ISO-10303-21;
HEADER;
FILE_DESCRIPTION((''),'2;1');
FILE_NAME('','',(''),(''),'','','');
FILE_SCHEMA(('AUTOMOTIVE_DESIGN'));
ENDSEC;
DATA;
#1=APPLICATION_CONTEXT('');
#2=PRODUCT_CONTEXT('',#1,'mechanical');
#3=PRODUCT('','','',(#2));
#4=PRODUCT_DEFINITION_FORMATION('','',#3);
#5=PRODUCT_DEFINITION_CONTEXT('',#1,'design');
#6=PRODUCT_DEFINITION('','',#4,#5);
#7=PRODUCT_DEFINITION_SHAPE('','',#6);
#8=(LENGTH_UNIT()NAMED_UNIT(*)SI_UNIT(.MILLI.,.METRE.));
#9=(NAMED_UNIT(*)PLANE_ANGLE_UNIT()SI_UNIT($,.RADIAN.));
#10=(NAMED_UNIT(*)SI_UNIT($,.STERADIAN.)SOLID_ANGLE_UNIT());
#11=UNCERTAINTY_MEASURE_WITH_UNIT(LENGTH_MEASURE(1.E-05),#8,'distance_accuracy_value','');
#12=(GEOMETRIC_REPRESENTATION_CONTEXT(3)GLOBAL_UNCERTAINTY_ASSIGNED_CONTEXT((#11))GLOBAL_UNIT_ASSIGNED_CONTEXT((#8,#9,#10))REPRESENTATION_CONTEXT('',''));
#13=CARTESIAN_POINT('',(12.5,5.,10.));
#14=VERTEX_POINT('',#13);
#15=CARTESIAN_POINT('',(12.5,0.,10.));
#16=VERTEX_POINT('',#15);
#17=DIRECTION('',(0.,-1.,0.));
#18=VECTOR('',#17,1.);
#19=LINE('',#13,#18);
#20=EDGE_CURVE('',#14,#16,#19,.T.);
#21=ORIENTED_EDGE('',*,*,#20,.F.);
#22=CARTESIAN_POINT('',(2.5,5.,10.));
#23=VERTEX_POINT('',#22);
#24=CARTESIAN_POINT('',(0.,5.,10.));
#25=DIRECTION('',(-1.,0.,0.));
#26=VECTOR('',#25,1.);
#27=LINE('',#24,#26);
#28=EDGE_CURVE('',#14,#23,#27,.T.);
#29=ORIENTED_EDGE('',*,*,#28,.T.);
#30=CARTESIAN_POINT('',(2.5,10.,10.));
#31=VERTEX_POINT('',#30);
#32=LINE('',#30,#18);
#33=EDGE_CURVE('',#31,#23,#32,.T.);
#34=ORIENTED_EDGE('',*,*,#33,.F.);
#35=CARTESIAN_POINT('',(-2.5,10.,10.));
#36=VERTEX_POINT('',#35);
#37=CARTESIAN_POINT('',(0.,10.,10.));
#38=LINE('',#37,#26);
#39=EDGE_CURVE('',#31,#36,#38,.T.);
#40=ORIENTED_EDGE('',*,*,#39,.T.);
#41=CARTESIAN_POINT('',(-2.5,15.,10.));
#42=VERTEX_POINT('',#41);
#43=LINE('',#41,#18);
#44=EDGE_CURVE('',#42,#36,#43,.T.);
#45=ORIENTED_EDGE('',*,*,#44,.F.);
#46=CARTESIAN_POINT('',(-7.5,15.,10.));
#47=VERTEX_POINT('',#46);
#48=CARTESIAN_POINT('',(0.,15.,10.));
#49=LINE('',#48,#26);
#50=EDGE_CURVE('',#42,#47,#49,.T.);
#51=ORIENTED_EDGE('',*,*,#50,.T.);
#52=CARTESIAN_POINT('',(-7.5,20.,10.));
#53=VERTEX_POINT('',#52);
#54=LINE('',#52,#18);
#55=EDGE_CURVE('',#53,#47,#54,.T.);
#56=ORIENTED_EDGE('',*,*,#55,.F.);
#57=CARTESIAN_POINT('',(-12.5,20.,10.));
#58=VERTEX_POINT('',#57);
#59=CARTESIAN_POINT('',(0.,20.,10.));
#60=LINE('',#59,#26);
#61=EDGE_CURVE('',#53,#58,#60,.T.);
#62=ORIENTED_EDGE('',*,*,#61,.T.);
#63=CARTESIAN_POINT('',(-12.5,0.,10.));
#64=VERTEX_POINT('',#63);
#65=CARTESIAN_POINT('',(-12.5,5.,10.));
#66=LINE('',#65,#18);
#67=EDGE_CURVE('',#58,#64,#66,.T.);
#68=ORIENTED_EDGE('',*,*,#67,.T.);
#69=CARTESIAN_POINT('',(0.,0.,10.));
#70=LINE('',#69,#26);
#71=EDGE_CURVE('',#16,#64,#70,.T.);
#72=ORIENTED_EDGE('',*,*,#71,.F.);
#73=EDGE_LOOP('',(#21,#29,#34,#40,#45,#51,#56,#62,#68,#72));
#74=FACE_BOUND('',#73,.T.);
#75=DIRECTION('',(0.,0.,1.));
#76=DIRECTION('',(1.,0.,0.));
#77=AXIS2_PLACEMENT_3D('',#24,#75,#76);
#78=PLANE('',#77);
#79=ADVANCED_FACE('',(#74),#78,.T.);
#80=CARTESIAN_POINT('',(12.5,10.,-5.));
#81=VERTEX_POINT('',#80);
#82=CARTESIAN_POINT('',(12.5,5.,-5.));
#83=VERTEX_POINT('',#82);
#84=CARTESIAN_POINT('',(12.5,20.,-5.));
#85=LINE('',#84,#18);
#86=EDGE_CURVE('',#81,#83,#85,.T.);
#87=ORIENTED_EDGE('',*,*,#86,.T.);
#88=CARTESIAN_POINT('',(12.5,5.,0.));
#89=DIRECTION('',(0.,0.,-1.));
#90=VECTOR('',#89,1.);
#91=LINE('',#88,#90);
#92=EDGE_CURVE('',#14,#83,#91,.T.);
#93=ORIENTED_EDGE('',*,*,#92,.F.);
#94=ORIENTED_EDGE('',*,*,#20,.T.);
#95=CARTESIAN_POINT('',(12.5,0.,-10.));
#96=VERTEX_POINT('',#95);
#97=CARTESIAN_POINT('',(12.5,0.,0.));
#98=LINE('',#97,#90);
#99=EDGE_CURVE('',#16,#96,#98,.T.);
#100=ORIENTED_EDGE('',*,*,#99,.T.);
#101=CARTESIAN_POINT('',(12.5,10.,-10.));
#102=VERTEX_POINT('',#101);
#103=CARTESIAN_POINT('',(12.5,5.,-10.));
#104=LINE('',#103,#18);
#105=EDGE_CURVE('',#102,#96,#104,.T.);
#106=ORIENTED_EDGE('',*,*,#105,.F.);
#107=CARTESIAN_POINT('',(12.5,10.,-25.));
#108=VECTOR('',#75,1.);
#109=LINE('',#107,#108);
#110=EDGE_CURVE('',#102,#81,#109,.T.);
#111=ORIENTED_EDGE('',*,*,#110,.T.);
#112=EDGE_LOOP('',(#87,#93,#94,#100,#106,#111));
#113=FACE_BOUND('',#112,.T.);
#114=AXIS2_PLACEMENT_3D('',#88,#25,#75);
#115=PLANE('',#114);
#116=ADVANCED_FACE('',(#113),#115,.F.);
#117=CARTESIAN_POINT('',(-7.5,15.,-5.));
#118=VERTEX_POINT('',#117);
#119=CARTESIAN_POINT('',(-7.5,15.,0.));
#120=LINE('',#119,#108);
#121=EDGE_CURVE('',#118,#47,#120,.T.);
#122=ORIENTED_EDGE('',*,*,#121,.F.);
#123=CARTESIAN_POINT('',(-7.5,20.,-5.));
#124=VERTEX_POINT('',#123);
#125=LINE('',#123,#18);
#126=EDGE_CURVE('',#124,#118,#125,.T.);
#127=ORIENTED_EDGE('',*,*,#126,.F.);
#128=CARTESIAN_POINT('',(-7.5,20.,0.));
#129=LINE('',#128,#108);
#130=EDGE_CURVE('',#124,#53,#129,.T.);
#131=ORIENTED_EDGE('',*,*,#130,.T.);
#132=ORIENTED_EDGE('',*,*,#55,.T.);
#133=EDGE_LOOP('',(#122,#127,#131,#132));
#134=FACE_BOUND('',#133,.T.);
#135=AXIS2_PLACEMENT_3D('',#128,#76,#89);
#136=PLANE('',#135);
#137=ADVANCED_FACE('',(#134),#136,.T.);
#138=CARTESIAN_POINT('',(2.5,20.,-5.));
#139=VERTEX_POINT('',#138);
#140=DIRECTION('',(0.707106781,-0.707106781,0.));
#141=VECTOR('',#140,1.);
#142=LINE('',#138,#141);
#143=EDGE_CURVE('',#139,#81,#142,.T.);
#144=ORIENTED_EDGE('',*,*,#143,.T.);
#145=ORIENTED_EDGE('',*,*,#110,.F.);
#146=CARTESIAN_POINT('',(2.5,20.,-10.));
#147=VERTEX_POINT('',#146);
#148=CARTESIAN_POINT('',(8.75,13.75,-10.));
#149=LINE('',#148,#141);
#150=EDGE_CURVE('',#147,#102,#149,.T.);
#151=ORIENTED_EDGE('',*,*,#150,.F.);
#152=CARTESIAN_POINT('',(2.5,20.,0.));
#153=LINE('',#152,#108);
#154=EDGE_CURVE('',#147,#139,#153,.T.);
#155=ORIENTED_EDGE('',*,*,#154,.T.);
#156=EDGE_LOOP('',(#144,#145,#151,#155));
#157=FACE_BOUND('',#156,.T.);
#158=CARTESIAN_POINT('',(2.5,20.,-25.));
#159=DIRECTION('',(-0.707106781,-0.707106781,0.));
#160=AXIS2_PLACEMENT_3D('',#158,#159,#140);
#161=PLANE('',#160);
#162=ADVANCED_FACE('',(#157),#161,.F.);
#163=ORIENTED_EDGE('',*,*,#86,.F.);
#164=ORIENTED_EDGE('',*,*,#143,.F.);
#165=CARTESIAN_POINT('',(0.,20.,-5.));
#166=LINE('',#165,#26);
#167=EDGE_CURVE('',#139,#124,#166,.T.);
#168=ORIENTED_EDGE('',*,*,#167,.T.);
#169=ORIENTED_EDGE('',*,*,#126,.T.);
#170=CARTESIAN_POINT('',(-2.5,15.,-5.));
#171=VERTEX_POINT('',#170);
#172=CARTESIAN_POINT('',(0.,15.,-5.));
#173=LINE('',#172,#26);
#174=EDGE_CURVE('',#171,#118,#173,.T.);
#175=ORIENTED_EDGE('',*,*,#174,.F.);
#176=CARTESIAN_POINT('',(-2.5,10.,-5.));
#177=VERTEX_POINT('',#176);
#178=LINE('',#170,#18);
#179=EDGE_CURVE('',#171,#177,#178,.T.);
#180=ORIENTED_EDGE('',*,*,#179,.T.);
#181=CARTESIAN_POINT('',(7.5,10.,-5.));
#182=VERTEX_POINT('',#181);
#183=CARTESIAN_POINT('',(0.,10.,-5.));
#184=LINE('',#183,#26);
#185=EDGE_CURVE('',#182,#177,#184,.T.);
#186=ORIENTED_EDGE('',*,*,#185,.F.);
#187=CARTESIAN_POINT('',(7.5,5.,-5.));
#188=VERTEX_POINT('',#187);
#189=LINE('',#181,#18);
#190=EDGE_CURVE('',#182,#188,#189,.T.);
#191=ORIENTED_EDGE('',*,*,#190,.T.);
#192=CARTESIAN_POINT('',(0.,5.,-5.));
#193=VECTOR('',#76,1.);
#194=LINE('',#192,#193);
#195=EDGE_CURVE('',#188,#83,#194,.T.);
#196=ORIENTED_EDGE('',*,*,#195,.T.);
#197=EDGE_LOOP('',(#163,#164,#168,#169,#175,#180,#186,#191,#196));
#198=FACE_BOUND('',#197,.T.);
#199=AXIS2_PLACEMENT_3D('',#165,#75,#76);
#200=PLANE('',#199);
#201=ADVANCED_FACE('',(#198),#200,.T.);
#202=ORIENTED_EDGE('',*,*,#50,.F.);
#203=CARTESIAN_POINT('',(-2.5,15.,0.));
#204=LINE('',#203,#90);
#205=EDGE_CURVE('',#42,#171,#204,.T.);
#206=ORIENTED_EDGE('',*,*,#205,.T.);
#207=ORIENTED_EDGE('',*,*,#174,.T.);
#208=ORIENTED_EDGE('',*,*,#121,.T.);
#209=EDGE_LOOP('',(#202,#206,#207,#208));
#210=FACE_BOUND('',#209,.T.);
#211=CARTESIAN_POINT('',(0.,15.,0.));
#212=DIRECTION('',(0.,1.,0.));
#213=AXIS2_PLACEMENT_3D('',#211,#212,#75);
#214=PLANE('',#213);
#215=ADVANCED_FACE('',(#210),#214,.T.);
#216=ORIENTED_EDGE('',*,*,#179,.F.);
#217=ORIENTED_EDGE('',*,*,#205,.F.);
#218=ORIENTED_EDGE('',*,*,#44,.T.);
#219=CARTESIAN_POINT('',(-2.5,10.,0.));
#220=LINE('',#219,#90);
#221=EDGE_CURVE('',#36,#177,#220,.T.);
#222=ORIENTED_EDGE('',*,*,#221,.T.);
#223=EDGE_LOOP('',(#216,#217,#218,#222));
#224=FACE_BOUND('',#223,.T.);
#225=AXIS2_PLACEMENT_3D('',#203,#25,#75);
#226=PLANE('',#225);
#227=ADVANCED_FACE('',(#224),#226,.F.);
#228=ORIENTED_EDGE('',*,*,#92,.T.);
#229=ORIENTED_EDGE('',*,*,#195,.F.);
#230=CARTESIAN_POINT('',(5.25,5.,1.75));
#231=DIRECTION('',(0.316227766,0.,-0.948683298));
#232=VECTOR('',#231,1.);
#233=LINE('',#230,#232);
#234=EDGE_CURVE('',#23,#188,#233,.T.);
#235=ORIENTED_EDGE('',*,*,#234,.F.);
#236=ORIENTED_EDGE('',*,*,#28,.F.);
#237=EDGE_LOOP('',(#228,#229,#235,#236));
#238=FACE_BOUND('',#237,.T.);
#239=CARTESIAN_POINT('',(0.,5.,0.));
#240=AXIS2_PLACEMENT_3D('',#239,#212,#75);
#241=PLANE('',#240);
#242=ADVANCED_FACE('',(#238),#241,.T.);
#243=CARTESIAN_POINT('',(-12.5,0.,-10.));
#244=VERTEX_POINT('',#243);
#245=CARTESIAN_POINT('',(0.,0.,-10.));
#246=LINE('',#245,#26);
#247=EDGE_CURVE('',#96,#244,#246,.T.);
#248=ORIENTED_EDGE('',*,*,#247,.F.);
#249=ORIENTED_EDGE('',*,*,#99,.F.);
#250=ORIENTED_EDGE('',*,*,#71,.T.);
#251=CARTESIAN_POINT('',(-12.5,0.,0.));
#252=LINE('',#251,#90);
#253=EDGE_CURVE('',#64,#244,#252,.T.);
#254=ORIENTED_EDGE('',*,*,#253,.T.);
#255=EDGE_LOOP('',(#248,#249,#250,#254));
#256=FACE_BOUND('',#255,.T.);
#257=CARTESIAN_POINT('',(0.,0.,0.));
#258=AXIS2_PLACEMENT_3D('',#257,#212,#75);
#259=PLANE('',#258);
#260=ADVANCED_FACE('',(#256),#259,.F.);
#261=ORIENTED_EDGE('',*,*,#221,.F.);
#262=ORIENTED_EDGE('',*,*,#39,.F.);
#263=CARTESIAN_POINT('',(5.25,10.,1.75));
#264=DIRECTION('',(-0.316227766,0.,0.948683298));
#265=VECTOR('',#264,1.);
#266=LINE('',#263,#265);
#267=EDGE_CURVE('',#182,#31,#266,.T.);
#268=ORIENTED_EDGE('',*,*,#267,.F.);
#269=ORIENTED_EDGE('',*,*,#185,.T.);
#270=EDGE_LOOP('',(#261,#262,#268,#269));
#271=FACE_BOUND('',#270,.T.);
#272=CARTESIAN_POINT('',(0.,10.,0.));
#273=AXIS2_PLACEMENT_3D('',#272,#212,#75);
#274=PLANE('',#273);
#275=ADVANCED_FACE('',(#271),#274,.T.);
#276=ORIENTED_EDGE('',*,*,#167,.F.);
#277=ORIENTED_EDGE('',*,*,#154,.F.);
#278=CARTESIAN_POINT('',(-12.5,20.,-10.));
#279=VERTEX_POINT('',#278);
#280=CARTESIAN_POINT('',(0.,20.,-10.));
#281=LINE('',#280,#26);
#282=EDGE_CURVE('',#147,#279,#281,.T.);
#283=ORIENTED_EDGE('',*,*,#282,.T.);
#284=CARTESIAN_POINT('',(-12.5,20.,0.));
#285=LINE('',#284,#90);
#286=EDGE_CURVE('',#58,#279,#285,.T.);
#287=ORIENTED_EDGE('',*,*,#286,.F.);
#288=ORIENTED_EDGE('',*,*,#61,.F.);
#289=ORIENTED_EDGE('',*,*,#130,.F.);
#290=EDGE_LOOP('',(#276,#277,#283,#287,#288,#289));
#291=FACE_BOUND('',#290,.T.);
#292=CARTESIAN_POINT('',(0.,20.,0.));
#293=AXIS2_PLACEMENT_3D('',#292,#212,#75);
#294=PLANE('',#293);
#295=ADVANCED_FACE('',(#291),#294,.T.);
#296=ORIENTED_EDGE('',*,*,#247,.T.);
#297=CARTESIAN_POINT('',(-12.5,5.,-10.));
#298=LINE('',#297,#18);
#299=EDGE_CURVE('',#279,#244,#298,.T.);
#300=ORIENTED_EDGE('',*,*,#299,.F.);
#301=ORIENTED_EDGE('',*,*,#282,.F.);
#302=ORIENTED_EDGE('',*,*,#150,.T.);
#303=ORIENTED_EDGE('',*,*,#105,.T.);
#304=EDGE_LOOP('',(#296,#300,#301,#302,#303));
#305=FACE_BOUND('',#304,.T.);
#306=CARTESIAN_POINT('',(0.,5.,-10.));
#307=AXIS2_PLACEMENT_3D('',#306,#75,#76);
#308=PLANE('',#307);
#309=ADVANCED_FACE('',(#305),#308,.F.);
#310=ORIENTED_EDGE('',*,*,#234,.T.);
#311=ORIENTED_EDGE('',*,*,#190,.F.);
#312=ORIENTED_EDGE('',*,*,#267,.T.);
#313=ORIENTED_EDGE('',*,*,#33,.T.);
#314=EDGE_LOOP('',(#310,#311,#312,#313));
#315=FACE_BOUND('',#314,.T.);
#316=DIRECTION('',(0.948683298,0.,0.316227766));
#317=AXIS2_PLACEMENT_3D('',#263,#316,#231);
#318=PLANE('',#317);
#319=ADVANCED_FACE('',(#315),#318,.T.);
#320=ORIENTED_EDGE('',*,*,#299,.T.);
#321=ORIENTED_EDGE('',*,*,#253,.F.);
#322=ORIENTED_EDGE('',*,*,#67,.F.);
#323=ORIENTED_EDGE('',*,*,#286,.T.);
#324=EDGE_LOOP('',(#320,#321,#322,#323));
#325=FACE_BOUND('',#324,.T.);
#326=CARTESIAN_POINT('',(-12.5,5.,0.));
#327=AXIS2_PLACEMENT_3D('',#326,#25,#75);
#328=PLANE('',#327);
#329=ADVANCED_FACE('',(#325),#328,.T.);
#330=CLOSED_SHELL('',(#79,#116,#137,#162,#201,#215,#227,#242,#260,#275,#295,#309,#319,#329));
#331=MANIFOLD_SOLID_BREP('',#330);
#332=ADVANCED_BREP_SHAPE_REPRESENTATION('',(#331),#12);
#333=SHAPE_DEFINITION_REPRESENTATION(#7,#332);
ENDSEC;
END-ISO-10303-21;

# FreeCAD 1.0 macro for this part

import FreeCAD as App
import Part
import Sketcher
Q = App.Units.Quantity

doc = App.newDocument("Part")
body = doc.addObject("PartDesign::Body", "Body")

# Sketch on XZ plane
sketch1 = doc.addObject("Sketcher::SketchObject", "Sketch")
body.addObject(sketch1)
sketch1.AttachmentSupport = (doc.XZ_Plane, [""])
sketch1.MapMode = "FlatFace"
sketch1.addGeometry(Part.LineSegment(App.Vector(12, -10, 0), App.Vector(-12, -10, 0)), False)
sketch1.addGeometry(Part.LineSegment(App.Vector(-12, -10, 0), App.Vector(-12, 10, 0)), False)
sketch1.addGeometry(Part.LineSegment(App.Vector(-12, 10, 0), App.Vector(12, 10, 0)), False)
sketch1.addGeometry(Part.LineSegment(App.Vector(12, 10, 0), App.Vector(12, -10, 0)), False)
sketch1.addConstraint(Sketcher.Constraint("Coincident", 0, 2, 1, 1))
sketch1.addConstraint(Sketcher.Constraint("Coincident", 1, 2, 2, 1))
sketch1.addConstraint(Sketcher.Constraint("Coincident", 2, 2, 3, 1))
sketch1.addConstraint(Sketcher.Constraint("Coincident", 3, 2, 0, 1))
sketch1.addConstraint(Sketcher.Constraint("Horizontal", 0))
sketch1.addConstraint(Sketcher.Constraint("Vertical", 1))
sketch1.addConstraint(Sketcher.Constraint("Horizontal", 2))
sketch1.addConstraint(Sketcher.Constraint("Vertical", 3))
sketch1.addConstraint(Sketcher.Constraint("Symmetric", 0, 2, 2, 2, -1, 1))
sketch1.addConstraint(Sketcher.Constraint("DistanceX", 0, 2, 0, 1, Q("25 mm")))
sketch1.addConstraint(Sketcher.Constraint("DistanceY", 1, 1, 1, 2, Q("20 mm")))
pad1 = doc.addObject("PartDesign::Pad", "Pad")
body.addObject(pad1)
pad1.Profile = sketch1
pad1.Length = 5
pad1.Reversed = True

# Sketch on XZ plane
sketch2 = doc.addObject("Sketcher::SketchObject", "Sketch001")
body.addObject(sketch2)
sketch2.AttachmentSupport = (doc.XZ_Plane, [""])
sketch2.MapMode = "FlatFace"
sketch2.addGeometry(Part.LineSegment(App.Vector(2, 10, 0), App.Vector(8, -5, 0)), False)
sketch2.addGeometry(Part.LineSegment(App.Vector(8, -5, 0), App.Vector(-2, -5, 0)), False)
sketch2.addGeometry(Part.LineSegment(App.Vector(-2, -5, 0), App.Vector(-2, 10, 0)), False)
sketch2.addGeometry(Part.LineSegment(App.Vector(-2, 10, 0), App.Vector(2, 10, 0)), False)
sketch2.addConstraint(Sketcher.Constraint("Coincident", 0, 2, 1, 1))
sketch2.addConstraint(Sketcher.Constraint("Coincident", 1, 2, 2, 1))
sketch2.addConstraint(Sketcher.Constraint("Coincident", 2, 2, 3, 1))
sketch2.addConstraint(Sketcher.Constraint("Coincident", 3, 2, 0, 1))
sketch2.addConstraint(Sketcher.Constraint("Horizontal", 1))
sketch2.addConstraint(Sketcher.Constraint("Vertical", 2))
sketch2.addConstraint(Sketcher.Constraint("Horizontal", 3))
sketch2.addConstraint(Sketcher.Constraint("DistanceX", 1, 2, 1, 1, Q("10 mm")))
sketch2.addConstraint(Sketcher.Constraint("DistanceX", 3, 1, 3, 2, Q("5 mm")))
sketch2.addConstraint(Sketcher.Constraint("DistanceY", 2, 1, 2, 2, Q("15 mm")))
sketch2.addConstraint(Sketcher.Constraint("DistanceY", 0, 2, -1, 1, Q("5 mm")))
sketch2.addConstraint(Sketcher.Constraint("DistanceX", -1, 1, 0, 2, Q("7.5 mm")))
pad2 = doc.addObject("PartDesign::Pad", "Pad001")
body.addObject(pad2)
pad2.Profile = sketch2
pad2.Length = 10
pad2.Reversed = True

# Sketch on XZ plane
sketch3 = doc.addObject("Sketcher::SketchObject", "Sketch002")
body.addObject(sketch3)
sketch3.AttachmentSupport = (doc.XZ_Plane, [""])
sketch3.MapMode = "FlatFace"
sketch3.addGeometry(Part.LineSegment(App.Vector(-8, -5, 0), App.Vector(-8, 10, 0)), False)
sketch3.addGeometry(Part.LineSegment(App.Vector(-8, 10, 0), App.Vector(-2, 10, 0)), False)
sketch3.addGeometry(Part.LineSegment(App.Vector(-2, 10, 0), App.Vector(-2, -5, 0)), False)
sketch3.addGeometry(Part.LineSegment(App.Vector(-2, -5, 0), App.Vector(-8, -5, 0)), False)
sketch3.addConstraint(Sketcher.Constraint("Coincident", 0, 2, 1, 1))
sketch3.addConstraint(Sketcher.Constraint("Coincident", 1, 2, 2, 1))
sketch3.addConstraint(Sketcher.Constraint("Coincident", 2, 2, 3, 1))
sketch3.addConstraint(Sketcher.Constraint("Coincident", 3, 2, 0, 1))
sketch3.addConstraint(Sketcher.Constraint("Vertical", 0))
sketch3.addConstraint(Sketcher.Constraint("Horizontal", 1))
sketch3.addConstraint(Sketcher.Constraint("Vertical", 2))
sketch3.addConstraint(Sketcher.Constraint("Horizontal", 3))
sketch3.addConstraint(Sketcher.Constraint("DistanceX", 1, 1, 1, 2, Q("5 mm")))
sketch3.addConstraint(Sketcher.Constraint("DistanceY", 0, 1, 0, 2, Q("15 mm")))
sketch3.addConstraint(Sketcher.Constraint("DistanceY", -1, 1, 0, 2, Q("10 mm")))
sketch3.addConstraint(Sketcher.Constraint("DistanceX", 0, 2, -1, 1, Q("7.5 mm")))
pad3 = doc.addObject("PartDesign::Pad", "Pad002")
body.addObject(pad3)
pad3.Profile = sketch3
pad3.Length = 15
pad3.Reversed = True

# Sketch on XZ plane
sketch4 = doc.addObject("Sketcher::SketchObject", "Sketch003")
body.addObject(sketch4)
sketch4.AttachmentSupport = (doc.XZ_Plane, [""])
sketch4.MapMode = "FlatFace"
sketch4.addGeometry(Part.LineSegment(App.Vector(12, -5, 0), App.Vector(12, -10, 0)), False)
sketch4.addGeometry(Part.LineSegment(App.Vector(12, -10, 0), App.Vector(-12, -10, 0)), False)
sketch4.addGeometry(Part.LineSegment(App.Vector(-12, -10, 0), App.Vector(-12, 10, 0)), False)
sketch4.addGeometry(Part.LineSegment(App.Vector(-12, 10, 0), App.Vector(-8, 10, 0)), False)
sketch4.addGeometry(Part.LineSegment(App.Vector(-8, 10, 0), App.Vector(-8, -5, 0)), False)
sketch4.addGeometry(Part.LineSegment(App.Vector(-8, -5, 0), App.Vector(12, -5, 0)), False)
sketch4.addConstraint(Sketcher.Constraint("Coincident", 0, 2, 1, 1))
sketch4.addConstraint(Sketcher.Constraint("Coincident", 1, 2, 2, 1))
sketch4.addConstraint(Sketcher.Constraint("Coincident", 2, 2, 3, 1))
sketch4.addConstraint(Sketcher.Constraint("Coincident", 3, 2, 4, 1))
sketch4.addConstraint(Sketcher.Constraint("Coincident", 4, 2, 5, 1))
sketch4.addConstraint(Sketcher.Constraint("Coincident", 5, 2, 0, 1))
sketch4.addConstraint(Sketcher.Constraint("Vertical", 0))
sketch4.addConstraint(Sketcher.Constraint("Horizontal", 1))
sketch4.addConstraint(Sketcher.Constraint("Vertical", 2))
sketch4.addConstraint(Sketcher.Constraint("Horizontal", 3))
sketch4.addConstraint(Sketcher.Constraint("Vertical", 4))
sketch4.addConstraint(Sketcher.Constraint("Horizontal", 5))
sketch4.addConstraint(Sketcher.Constraint("Symmetric", 0, 2, 2, 2, -1, 1))
sketch4.addConstraint(Sketcher.Constraint("Equal", 3, 0))
sketch4.addConstraint(Sketcher.Constraint("Equal", 5, 2))
sketch4.addConstraint(Sketcher.Constraint("DistanceX", 1, 2, 1, 1, Q("25 mm")))
sketch4.addConstraint(Sketcher.Constraint("DistanceX", 3, 1, 3, 2, Q("5 mm")))
pad4 = doc.addObject("PartDesign::Pad", "Pad003")
body.addObject(pad4)
pad4.Profile = sketch4
pad4.Length = 20
pad4.Reversed = True

# Sketch on XY plane
sketch5 = doc.addObject("Sketcher::SketchObject", "Sketch004")
body.addObject(sketch5)
sketch5.AttachmentSupport = (doc.XY_Plane, [""])
sketch5.MapMode = "FlatFace"
sketch5.AttachmentOffset = App.Placement(App.Vector(0, 0, -5), App.Rotation())
sketch5.addGeometry(Part.LineSegment(App.Vector(12, 20, 0), App.Vector(2, 20, 0)), False)
sketch5.addGeometry(Part.LineSegment(App.Vector(2, 20, 0), App.Vector(12, 10, 0)), False)
sketch5.addGeometry(Part.LineSegment(App.Vector(12, 10, 0), App.Vector(12, 20, 0)), False)
sketch5.addConstraint(Sketcher.Constraint("Coincident", 0, 2, 1, 1))
sketch5.addConstraint(Sketcher.Constraint("Coincident", 1, 2, 2, 1))
sketch5.addConstraint(Sketcher.Constraint("Coincident", 2, 2, 0, 1))
sketch5.addConstraint(Sketcher.Constraint("Horizontal", 0))
sketch5.addConstraint(Sketcher.Constraint("Vertical", 2))
sketch5.addConstraint(Sketcher.Constraint("Equal", 0, 2))
sketch5.addConstraint(Sketcher.Constraint("DistanceX", 0, 2, 0, 1, Q("10 mm")))
sketch5.addConstraint(Sketcher.Constraint("DistanceY", -1, 1, 0, 2, Q("20 mm")))
sketch5.addConstraint(Sketcher.Constraint("DistanceX", -1, 1, 0, 2, Q("2.5 mm")))
pocket1 = doc.addObject("PartDesign::Pocket", "Pocket")
body.addObject(pocket1)
pocket1.Profile = sketch5
pocket1.Length = 20

doc.recompute()
